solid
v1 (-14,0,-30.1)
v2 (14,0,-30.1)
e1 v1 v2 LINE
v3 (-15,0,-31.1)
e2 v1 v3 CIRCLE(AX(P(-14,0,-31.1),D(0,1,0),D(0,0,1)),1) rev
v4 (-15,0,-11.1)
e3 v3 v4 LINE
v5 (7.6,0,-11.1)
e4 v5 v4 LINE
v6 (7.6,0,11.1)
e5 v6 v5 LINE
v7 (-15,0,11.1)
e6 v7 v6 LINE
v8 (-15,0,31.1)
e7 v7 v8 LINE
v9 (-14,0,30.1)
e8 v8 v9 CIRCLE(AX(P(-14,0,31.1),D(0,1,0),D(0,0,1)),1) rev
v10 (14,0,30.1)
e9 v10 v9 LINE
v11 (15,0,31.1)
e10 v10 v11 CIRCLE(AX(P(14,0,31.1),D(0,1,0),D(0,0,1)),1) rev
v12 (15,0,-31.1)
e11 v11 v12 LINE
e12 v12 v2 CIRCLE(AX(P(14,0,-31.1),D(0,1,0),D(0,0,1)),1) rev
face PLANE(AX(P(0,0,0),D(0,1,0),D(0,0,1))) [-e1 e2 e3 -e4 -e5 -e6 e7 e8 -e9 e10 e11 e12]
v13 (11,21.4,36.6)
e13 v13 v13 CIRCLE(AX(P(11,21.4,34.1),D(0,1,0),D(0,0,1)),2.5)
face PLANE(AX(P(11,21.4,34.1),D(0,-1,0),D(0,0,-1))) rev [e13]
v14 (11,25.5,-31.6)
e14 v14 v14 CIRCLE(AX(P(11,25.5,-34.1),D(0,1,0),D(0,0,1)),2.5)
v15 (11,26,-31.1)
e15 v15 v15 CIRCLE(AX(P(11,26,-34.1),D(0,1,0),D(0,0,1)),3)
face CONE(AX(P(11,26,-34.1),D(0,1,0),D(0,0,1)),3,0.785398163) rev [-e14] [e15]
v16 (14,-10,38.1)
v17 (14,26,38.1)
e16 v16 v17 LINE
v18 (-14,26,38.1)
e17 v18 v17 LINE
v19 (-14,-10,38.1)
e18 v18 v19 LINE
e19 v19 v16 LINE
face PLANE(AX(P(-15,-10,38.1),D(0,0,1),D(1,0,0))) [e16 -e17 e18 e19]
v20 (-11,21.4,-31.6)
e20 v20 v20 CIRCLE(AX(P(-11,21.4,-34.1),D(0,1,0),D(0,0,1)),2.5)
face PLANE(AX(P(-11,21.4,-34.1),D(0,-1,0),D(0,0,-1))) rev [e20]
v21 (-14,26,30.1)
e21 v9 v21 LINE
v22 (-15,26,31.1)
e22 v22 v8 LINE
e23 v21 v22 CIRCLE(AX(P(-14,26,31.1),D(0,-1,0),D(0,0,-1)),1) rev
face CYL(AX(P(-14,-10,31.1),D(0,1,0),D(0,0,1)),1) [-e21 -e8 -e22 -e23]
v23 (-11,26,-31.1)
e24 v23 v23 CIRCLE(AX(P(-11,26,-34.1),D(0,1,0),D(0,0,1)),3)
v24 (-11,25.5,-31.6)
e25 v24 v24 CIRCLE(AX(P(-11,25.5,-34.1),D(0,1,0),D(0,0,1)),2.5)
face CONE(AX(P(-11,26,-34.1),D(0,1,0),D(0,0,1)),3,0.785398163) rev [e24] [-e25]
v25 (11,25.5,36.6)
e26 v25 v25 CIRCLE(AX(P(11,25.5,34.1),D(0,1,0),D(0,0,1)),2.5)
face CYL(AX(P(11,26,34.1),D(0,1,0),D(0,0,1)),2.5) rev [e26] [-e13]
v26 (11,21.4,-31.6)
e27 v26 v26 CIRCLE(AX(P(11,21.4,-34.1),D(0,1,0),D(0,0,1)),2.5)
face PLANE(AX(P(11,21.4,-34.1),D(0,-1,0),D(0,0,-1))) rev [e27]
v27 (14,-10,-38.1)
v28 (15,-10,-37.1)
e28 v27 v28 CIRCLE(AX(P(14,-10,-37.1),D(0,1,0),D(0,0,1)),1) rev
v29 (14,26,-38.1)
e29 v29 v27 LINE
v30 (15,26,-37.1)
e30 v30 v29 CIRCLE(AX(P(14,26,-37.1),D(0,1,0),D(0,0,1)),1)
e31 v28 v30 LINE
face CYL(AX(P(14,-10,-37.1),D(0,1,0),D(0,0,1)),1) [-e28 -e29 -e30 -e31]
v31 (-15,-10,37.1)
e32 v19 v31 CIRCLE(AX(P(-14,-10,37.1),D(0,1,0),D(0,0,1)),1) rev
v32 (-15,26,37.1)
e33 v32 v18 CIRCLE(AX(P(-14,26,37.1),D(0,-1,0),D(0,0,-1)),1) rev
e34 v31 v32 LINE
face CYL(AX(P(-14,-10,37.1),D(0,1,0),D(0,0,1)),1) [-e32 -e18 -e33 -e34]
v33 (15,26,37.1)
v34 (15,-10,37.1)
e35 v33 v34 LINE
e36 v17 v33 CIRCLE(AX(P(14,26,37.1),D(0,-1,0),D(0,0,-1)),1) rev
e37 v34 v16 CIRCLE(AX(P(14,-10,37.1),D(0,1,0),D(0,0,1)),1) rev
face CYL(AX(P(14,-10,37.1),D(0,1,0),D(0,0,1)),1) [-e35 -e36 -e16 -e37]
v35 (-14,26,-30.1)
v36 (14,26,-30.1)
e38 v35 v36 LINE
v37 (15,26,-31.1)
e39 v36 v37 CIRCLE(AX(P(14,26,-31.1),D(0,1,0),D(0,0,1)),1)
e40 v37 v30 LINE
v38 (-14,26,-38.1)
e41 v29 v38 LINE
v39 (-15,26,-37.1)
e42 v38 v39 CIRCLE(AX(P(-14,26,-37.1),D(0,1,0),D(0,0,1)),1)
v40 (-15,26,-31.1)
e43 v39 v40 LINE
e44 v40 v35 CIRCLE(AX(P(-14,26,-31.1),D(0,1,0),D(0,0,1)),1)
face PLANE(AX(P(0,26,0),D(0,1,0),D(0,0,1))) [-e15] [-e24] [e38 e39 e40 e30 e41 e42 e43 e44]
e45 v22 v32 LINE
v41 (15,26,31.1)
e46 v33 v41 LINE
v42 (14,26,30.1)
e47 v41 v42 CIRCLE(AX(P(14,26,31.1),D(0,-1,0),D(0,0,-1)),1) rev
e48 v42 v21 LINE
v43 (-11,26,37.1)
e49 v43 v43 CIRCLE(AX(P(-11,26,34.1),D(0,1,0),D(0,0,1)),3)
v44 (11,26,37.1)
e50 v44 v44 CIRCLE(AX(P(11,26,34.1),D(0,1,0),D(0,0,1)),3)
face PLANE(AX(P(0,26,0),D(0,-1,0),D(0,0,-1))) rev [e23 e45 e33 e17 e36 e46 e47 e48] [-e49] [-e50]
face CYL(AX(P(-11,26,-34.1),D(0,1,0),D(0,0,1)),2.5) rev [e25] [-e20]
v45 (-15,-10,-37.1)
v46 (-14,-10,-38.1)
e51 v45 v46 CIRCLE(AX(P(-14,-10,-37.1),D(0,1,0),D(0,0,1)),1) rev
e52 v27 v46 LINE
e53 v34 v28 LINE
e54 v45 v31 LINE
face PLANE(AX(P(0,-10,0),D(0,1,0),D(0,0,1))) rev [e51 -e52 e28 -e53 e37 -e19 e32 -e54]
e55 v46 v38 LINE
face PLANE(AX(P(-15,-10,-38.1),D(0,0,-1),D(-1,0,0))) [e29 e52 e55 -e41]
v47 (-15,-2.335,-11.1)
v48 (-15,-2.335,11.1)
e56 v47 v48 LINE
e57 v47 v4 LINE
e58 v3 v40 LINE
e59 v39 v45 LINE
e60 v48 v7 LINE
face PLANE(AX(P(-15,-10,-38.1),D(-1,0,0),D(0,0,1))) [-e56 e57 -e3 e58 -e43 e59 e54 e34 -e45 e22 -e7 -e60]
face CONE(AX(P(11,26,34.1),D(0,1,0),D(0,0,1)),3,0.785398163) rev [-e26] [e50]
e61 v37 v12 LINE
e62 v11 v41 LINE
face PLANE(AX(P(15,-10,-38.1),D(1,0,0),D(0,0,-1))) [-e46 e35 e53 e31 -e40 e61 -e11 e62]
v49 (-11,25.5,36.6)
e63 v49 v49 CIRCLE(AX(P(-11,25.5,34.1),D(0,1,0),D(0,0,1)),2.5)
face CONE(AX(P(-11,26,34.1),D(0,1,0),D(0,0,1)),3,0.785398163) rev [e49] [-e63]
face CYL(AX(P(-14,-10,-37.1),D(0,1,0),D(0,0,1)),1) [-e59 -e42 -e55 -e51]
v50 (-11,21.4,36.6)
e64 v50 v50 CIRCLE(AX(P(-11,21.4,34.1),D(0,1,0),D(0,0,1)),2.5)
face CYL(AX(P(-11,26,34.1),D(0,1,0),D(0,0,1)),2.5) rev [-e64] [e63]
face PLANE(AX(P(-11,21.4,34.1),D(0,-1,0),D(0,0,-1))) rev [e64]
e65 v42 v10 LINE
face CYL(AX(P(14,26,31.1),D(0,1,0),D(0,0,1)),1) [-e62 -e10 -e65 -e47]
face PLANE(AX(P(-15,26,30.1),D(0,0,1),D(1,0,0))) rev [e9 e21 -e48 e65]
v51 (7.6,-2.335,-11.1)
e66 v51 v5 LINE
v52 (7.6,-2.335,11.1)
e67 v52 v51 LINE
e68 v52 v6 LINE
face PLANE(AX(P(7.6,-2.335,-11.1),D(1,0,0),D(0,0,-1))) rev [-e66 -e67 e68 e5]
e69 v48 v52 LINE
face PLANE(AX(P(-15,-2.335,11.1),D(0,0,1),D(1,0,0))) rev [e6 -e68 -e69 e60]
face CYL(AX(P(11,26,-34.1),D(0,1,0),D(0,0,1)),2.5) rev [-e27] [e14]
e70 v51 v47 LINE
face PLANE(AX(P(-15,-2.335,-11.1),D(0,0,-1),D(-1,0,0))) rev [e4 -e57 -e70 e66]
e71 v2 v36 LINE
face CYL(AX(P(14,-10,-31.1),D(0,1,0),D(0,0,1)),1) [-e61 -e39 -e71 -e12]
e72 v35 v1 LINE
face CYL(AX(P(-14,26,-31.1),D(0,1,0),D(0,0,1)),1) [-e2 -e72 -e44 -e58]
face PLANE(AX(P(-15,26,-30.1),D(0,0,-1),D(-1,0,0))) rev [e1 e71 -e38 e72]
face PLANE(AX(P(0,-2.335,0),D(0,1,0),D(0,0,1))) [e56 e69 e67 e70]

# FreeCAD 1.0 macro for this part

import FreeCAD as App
import Part
import Sketcher


def edges_at(feature, points):
    """Names of the edges that pass closest to the given points."""
    edges = feature.Shape.Edges
    near = lambda p: min(range(len(edges)), key=lambda i: edges[i].distToShape(Part.Vertex(*p))[0])
    return sorted({f"Edge{near(p) + 1}" for p in points})

doc = App.newDocument("Part")
body = doc.addObject("PartDesign::Body", "Body")

# Sketch on XZ plane
sketch1 = doc.addObject("Sketcher::SketchObject", "Sketch")
body.addObject(sketch1)
sketch1.AttachmentSupport = (doc.XZ_Plane, [""])
sketch1.MapMode = "FlatFace"
sketch1.addGeometry([
    Part.LineSegment(App.Vector(-15, -38, 0), App.Vector(-15, 38, 0)),
    Part.LineSegment(App.Vector(-15, 38, 0), App.Vector(15, 38, 0)),
    Part.LineSegment(App.Vector(15, 38, 0), App.Vector(15, -38, 0)),
    Part.LineSegment(App.Vector(15, -38, 0), App.Vector(-15, -38, 0)),
], False)
sketch1.addConstraint([
    Sketcher.Constraint("Coincident", 0, 2, 1, 1),
    Sketcher.Constraint("Coincident", 1, 2, 2, 1),
    Sketcher.Constraint("Coincident", 2, 2, 3, 1),
    Sketcher.Constraint("Coincident", 3, 2, 0, 1),
    Sketcher.Constraint("Vertical", 0),
    Sketcher.Constraint("Horizontal", 1),
    Sketcher.Constraint("Vertical", 2),
    Sketcher.Constraint("Horizontal", 3),
    Sketcher.Constraint("Symmetric", 0, 2, 2, 2, -1, 1),
    Sketcher.Constraint("DistanceX", 1, 1, 1, 2, 30.0),
    Sketcher.Constraint("DistanceY", 0, 1, 0, 2, 76.2),
])
pad1 = doc.addObject("PartDesign::Pad", "Pad")
body.addObject(pad1)
pad1.Profile = sketch1
pad1.Length = 10

# Sketch on XZ plane
sketch2 = doc.addObject("Sketcher::SketchObject", "Sketch001")
body.addObject(sketch2)
sketch2.AttachmentSupport = (doc.XZ_Plane, [""])
sketch2.MapMode = "FlatFace"
sketch2.addGeometry([
    Part.LineSegment(App.Vector(-15, -11, 0), App.Vector(-15, 11, 0)),
    Part.LineSegment(App.Vector(-15, 11, 0), App.Vector(8, 11, 0)),
    Part.LineSegment(App.Vector(8, 11, 0), App.Vector(8, -11, 0)),
    Part.LineSegment(App.Vector(8, -11, 0), App.Vector(-15, -11, 0)),
], False)
sketch2.addConstraint([
    Sketcher.Constraint("Coincident", 0, 2, 1, 1),
    Sketcher.Constraint("Coincident", 1, 2, 2, 1),
    Sketcher.Constraint("Coincident", 2, 2, 3, 1),
    Sketcher.Constraint("Coincident", 3, 2, 0, 1),
    Sketcher.Constraint("Vertical", 0),
    Sketcher.Constraint("Horizontal", 1),
    Sketcher.Constraint("Vertical", 2),
    Sketcher.Constraint("Horizontal", 3),
    Sketcher.Constraint("DistanceX", 1, 1, 1, 2, 22.6),
    Sketcher.Constraint("DistanceY", 0, 1, 0, 2, 22.2),
    Sketcher.Constraint("DistanceX", 0, 2, -1, 1, 15.0),
    Sketcher.Constraint("DistanceY", -1, 1, 0, 2, 11.1),
])
pocket1 = doc.addObject("PartDesign::Pocket", "Pocket")
body.addObject(pocket1)
pocket1.Profile = sketch2
pocket1.Length = 2.335
pocket1.Reversed = True

# Sketch on XZ plane
sketch3 = doc.addObject("Sketcher::SketchObject", "Sketch002")
body.addObject(sketch3)
sketch3.AttachmentSupport = (doc.XZ_Plane, [""])
sketch3.MapMode = "FlatFace"
sketch3.addGeometry([
    Part.LineSegment(App.Vector(-15, -38, 0), App.Vector(-15, -30, 0)),  # 0
    Part.LineSegment(App.Vector(-15, -30, 0), App.Vector(15, -30, 0)),  # 1
    Part.LineSegment(App.Vector(15, -30, 0), App.Vector(15, -38, 0)),  # 2
    Part.LineSegment(App.Vector(15, -38, 0), App.Vector(-15, -38, 0)),  # 3
    Part.LineSegment(App.Vector(-15, 30, 0), App.Vector(-15, 38, 0)),  # 4
    Part.LineSegment(App.Vector(-15, 38, 0), App.Vector(15, 38, 0)),  # 5
    Part.LineSegment(App.Vector(15, 38, 0), App.Vector(15, 30, 0)),  # 6
    Part.LineSegment(App.Vector(15, 30, 0), App.Vector(-15, 30, 0)),  # 7
], False)
sketch3.addConstraint([
    Sketcher.Constraint("Coincident", 0, 2, 1, 1),
    Sketcher.Constraint("Coincident", 1, 2, 2, 1),
    Sketcher.Constraint("Coincident", 2, 2, 3, 1),
    Sketcher.Constraint("Coincident", 3, 2, 0, 1),
    Sketcher.Constraint("Coincident", 4, 2, 5, 1),
    Sketcher.Constraint("Coincident", 5, 2, 6, 1),
    Sketcher.Constraint("Coincident", 6, 2, 7, 1),
    Sketcher.Constraint("Coincident", 7, 2, 4, 1),
    Sketcher.Constraint("Vertical", 0),
    Sketcher.Constraint("Horizontal", 1),
    Sketcher.Constraint("Vertical", 2),
    Sketcher.Constraint("Horizontal", 3),
    Sketcher.Constraint("Vertical", 4),
    Sketcher.Constraint("Horizontal", 5),
    Sketcher.Constraint("Vertical", 6),
    Sketcher.Constraint("Horizontal", 7),
    Sketcher.Constraint("Symmetric", 2, 2, 4, 2, -1, 1),
    Sketcher.Constraint("Symmetric", 0, 2, 6, 2, -1, 1),
    Sketcher.Constraint("Vertical", 3, 2, 4, 2),
    Sketcher.Constraint("DistanceX", 1, 1, 1, 2, 30.0),
    Sketcher.Constraint("DistanceY", 0, 1, 0, 2, 8.0),
    Sketcher.Constraint("DistanceY", 0, 2, -1, 1, 30.1),
])
pad2 = doc.addObject("PartDesign::Pad", "Pad001")
body.addObject(pad2)
pad2.Profile = sketch3
pad2.Length = 26
pad2.Reversed = True

# Sketch on XZ plane
sketch4 = doc.addObject("Sketcher::SketchObject", "Sketch003")
body.addObject(sketch4)
sketch4.AttachmentSupport = (doc.XZ_Plane, [""])
sketch4.MapMode = "FlatFace"
sketch4.AttachmentOffset = App.Placement(App.Vector(0, 0, -26), App.Rotation())
sketch4.addGeometry([
    Part.Circle(App.Vector(-11, -34.1, 0), App.Vector(0, 0, 1), 2.5),
    Part.Circle(App.Vector(11, -34.1, 0), App.Vector(0, 0, 1), 2.5),
    Part.Circle(App.Vector(11, 34.1, 0), App.Vector(0, 0, 1), 2.5),
    Part.Circle(App.Vector(-11, 34.1, 0), App.Vector(0, 0, 1), 2.5),
], False)
sketch4.addConstraint([
    Sketcher.Constraint("Equal", 0, 1),
    Sketcher.Constraint("Equal", 1, 2),
    Sketcher.Constraint("Equal", 2, 3),
    Sketcher.Constraint("Symmetric", 0, 3, 2, 3, -1, 1),
    Sketcher.Constraint("Symmetric", 1, 3, 3, 3, -1, 1),
    Sketcher.Constraint("Symmetric", 0, 3, 1, 3, -2),
    Sketcher.Constraint("Diameter", 0, 5.0),
    Sketcher.Constraint("DistanceX", 0, 3, -1, 1, 11.0),
    Sketcher.Constraint("DistanceY", 0, 3, -1, 1, 34.1),
])
doc.recompute()
hole = doc.addObject("PartDesign::Hole", "Hole")
body.addObject(hole)
hole.Profile = sketch4
hole.ThreadType = "None"
hole.Diameter = 5
hole.DepthType = "Dimension"
hole.Depth = 4.6
hole.DrillPoint = "Flat"
hole.HoleCutType = "Countersink"
hole.HoleCutDiameter = 6
hole.HoleCutCountersinkAngle = 90
hole.Reversed = True
doc.recompute()

fillet = doc.addObject("PartDesign::Fillet", "Fillet")
body.addObject(fillet)
fillet.Base = (hole, edges_at(hole, [
    (-15, 13, -30.1),
    (15, 13, -30.1),
    (-15, 13, 30.1),
    (15, 13, 30.1),
    (-15, 8, -38.1),
    (15, 8, -38.1),
    (15, 8, 38.1),
    (-15, 8, 38.1),
]))
fillet.Radius = 1

doc.recompute()
